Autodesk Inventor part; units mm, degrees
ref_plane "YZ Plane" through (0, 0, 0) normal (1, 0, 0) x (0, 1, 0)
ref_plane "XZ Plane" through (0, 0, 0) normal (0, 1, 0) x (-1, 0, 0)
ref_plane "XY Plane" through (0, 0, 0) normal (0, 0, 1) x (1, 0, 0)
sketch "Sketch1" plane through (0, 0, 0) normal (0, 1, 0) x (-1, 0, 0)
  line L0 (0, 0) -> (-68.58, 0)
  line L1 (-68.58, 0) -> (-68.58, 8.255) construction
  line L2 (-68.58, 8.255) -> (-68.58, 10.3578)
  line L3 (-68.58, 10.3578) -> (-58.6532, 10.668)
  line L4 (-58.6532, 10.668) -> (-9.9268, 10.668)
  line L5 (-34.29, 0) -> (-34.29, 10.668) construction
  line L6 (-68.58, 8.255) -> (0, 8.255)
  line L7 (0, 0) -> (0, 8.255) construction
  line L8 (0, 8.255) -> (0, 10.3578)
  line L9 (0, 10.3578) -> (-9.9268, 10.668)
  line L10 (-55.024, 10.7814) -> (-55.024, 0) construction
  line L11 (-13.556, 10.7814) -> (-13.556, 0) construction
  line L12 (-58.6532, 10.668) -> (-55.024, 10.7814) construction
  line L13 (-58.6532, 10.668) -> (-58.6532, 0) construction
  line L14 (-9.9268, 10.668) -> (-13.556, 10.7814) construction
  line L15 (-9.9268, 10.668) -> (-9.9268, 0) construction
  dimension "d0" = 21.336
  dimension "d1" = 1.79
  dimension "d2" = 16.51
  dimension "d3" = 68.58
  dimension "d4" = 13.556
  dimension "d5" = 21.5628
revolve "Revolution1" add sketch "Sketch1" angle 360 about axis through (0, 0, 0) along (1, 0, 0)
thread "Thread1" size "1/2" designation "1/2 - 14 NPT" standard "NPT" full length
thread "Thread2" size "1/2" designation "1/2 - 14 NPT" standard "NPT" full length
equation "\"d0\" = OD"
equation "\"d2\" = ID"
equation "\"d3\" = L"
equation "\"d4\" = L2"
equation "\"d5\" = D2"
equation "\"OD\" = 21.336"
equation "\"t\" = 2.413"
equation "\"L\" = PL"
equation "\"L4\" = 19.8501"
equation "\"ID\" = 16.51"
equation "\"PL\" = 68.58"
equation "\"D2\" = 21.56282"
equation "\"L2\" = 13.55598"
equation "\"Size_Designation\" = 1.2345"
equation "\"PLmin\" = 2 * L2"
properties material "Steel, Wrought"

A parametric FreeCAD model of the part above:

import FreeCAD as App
import Part
import Sketcher
from FreeCAD import Vector
Q = App.Units.Quantity

doc = App.newDocument("Part")
body = doc.addObject("PartDesign::Body", "Body")

# Sketch on XZ plane
sketch1 = body.newObject("Sketcher::SketchObject", "Sketch")
sketch1.AttachmentSupport = (doc.getObject("XZ_Plane"), [""])
sketch1.MapMode = "FlatFace"
sketch1.addGeometry(Part.LineSegment(Vector(68.6, 10.4, 0), Vector(68.6, 8.3, 0)), False)
sketch1.addGeometry(Part.LineSegment(Vector(68.6, 8.3, 0), Vector(0, 8.3, 0)), False)
sketch1.addGeometry(Part.LineSegment(Vector(0, 8.3, 0), Vector(0, 10.4, 0)), False)
sketch1.addGeometry(Part.LineSegment(Vector(0, 10.4, 0), Vector(9.9, 10.7, 0)), False)
sketch1.addGeometry(Part.LineSegment(Vector(9.9, 10.7, 0), Vector(58.7, 10.7, 0)), False)
sketch1.addGeometry(Part.LineSegment(Vector(58.7, 10.7, 0), Vector(68.6, 10.4, 0)), False)
sketch1.addConstraint(Sketcher.Constraint("Coincident", 0, 2, 1, 1))
sketch1.addConstraint(Sketcher.Constraint("Coincident", 1, 2, 2, 1))
sketch1.addConstraint(Sketcher.Constraint("Coincident", 2, 2, 3, 1))
sketch1.addConstraint(Sketcher.Constraint("Coincident", 3, 2, 4, 1))
sketch1.addConstraint(Sketcher.Constraint("Coincident", 4, 2, 5, 1))
sketch1.addConstraint(Sketcher.Constraint("Coincident", 5, 2, 0, 1))
sketch1.addConstraint(Sketcher.Constraint("Vertical", 0))
sketch1.addConstraint(Sketcher.Constraint("Horizontal", 1))
sketch1.addConstraint(Sketcher.Constraint("Vertical", 2))
sketch1.addConstraint(Sketcher.Constraint("Horizontal", 4))
sketch1.addConstraint(Sketcher.Constraint("PointOnObject", 1, 2, -2))
sketch1.addConstraint(Sketcher.Constraint("Horizontal", 2, 2, 5, 2))
sketch1.addConstraint(Sketcher.Constraint("Equal", 3, 5))
sketch1.addConstraint(Sketcher.Constraint("DistanceX", 1, 2, 1, 1, Q("2.7 in")))
sketch1.addConstraint(Sketcher.Constraint("Angle", 3, Q("1.7898 deg")))
sketch1.addConstraint(Sketcher.Constraint("DistanceY", -1, 1, 3, 2, Q("0.42 in")))
sketch1.addConstraint(Sketcher.Constraint("Distance", 3, Q("0.391 in")))
sketch1.addConstraint(Sketcher.Constraint("DistanceY", -1, 1, 0, 2, Q("0.325 in")))
revolution = body.newObject("PartDesign::Revolution", "Revolution")
revolution.Profile = sketch1
revolution.ReferenceAxis = (sketch1, ["H_Axis"])
revolution.Angle = 360

doc.recompute()
